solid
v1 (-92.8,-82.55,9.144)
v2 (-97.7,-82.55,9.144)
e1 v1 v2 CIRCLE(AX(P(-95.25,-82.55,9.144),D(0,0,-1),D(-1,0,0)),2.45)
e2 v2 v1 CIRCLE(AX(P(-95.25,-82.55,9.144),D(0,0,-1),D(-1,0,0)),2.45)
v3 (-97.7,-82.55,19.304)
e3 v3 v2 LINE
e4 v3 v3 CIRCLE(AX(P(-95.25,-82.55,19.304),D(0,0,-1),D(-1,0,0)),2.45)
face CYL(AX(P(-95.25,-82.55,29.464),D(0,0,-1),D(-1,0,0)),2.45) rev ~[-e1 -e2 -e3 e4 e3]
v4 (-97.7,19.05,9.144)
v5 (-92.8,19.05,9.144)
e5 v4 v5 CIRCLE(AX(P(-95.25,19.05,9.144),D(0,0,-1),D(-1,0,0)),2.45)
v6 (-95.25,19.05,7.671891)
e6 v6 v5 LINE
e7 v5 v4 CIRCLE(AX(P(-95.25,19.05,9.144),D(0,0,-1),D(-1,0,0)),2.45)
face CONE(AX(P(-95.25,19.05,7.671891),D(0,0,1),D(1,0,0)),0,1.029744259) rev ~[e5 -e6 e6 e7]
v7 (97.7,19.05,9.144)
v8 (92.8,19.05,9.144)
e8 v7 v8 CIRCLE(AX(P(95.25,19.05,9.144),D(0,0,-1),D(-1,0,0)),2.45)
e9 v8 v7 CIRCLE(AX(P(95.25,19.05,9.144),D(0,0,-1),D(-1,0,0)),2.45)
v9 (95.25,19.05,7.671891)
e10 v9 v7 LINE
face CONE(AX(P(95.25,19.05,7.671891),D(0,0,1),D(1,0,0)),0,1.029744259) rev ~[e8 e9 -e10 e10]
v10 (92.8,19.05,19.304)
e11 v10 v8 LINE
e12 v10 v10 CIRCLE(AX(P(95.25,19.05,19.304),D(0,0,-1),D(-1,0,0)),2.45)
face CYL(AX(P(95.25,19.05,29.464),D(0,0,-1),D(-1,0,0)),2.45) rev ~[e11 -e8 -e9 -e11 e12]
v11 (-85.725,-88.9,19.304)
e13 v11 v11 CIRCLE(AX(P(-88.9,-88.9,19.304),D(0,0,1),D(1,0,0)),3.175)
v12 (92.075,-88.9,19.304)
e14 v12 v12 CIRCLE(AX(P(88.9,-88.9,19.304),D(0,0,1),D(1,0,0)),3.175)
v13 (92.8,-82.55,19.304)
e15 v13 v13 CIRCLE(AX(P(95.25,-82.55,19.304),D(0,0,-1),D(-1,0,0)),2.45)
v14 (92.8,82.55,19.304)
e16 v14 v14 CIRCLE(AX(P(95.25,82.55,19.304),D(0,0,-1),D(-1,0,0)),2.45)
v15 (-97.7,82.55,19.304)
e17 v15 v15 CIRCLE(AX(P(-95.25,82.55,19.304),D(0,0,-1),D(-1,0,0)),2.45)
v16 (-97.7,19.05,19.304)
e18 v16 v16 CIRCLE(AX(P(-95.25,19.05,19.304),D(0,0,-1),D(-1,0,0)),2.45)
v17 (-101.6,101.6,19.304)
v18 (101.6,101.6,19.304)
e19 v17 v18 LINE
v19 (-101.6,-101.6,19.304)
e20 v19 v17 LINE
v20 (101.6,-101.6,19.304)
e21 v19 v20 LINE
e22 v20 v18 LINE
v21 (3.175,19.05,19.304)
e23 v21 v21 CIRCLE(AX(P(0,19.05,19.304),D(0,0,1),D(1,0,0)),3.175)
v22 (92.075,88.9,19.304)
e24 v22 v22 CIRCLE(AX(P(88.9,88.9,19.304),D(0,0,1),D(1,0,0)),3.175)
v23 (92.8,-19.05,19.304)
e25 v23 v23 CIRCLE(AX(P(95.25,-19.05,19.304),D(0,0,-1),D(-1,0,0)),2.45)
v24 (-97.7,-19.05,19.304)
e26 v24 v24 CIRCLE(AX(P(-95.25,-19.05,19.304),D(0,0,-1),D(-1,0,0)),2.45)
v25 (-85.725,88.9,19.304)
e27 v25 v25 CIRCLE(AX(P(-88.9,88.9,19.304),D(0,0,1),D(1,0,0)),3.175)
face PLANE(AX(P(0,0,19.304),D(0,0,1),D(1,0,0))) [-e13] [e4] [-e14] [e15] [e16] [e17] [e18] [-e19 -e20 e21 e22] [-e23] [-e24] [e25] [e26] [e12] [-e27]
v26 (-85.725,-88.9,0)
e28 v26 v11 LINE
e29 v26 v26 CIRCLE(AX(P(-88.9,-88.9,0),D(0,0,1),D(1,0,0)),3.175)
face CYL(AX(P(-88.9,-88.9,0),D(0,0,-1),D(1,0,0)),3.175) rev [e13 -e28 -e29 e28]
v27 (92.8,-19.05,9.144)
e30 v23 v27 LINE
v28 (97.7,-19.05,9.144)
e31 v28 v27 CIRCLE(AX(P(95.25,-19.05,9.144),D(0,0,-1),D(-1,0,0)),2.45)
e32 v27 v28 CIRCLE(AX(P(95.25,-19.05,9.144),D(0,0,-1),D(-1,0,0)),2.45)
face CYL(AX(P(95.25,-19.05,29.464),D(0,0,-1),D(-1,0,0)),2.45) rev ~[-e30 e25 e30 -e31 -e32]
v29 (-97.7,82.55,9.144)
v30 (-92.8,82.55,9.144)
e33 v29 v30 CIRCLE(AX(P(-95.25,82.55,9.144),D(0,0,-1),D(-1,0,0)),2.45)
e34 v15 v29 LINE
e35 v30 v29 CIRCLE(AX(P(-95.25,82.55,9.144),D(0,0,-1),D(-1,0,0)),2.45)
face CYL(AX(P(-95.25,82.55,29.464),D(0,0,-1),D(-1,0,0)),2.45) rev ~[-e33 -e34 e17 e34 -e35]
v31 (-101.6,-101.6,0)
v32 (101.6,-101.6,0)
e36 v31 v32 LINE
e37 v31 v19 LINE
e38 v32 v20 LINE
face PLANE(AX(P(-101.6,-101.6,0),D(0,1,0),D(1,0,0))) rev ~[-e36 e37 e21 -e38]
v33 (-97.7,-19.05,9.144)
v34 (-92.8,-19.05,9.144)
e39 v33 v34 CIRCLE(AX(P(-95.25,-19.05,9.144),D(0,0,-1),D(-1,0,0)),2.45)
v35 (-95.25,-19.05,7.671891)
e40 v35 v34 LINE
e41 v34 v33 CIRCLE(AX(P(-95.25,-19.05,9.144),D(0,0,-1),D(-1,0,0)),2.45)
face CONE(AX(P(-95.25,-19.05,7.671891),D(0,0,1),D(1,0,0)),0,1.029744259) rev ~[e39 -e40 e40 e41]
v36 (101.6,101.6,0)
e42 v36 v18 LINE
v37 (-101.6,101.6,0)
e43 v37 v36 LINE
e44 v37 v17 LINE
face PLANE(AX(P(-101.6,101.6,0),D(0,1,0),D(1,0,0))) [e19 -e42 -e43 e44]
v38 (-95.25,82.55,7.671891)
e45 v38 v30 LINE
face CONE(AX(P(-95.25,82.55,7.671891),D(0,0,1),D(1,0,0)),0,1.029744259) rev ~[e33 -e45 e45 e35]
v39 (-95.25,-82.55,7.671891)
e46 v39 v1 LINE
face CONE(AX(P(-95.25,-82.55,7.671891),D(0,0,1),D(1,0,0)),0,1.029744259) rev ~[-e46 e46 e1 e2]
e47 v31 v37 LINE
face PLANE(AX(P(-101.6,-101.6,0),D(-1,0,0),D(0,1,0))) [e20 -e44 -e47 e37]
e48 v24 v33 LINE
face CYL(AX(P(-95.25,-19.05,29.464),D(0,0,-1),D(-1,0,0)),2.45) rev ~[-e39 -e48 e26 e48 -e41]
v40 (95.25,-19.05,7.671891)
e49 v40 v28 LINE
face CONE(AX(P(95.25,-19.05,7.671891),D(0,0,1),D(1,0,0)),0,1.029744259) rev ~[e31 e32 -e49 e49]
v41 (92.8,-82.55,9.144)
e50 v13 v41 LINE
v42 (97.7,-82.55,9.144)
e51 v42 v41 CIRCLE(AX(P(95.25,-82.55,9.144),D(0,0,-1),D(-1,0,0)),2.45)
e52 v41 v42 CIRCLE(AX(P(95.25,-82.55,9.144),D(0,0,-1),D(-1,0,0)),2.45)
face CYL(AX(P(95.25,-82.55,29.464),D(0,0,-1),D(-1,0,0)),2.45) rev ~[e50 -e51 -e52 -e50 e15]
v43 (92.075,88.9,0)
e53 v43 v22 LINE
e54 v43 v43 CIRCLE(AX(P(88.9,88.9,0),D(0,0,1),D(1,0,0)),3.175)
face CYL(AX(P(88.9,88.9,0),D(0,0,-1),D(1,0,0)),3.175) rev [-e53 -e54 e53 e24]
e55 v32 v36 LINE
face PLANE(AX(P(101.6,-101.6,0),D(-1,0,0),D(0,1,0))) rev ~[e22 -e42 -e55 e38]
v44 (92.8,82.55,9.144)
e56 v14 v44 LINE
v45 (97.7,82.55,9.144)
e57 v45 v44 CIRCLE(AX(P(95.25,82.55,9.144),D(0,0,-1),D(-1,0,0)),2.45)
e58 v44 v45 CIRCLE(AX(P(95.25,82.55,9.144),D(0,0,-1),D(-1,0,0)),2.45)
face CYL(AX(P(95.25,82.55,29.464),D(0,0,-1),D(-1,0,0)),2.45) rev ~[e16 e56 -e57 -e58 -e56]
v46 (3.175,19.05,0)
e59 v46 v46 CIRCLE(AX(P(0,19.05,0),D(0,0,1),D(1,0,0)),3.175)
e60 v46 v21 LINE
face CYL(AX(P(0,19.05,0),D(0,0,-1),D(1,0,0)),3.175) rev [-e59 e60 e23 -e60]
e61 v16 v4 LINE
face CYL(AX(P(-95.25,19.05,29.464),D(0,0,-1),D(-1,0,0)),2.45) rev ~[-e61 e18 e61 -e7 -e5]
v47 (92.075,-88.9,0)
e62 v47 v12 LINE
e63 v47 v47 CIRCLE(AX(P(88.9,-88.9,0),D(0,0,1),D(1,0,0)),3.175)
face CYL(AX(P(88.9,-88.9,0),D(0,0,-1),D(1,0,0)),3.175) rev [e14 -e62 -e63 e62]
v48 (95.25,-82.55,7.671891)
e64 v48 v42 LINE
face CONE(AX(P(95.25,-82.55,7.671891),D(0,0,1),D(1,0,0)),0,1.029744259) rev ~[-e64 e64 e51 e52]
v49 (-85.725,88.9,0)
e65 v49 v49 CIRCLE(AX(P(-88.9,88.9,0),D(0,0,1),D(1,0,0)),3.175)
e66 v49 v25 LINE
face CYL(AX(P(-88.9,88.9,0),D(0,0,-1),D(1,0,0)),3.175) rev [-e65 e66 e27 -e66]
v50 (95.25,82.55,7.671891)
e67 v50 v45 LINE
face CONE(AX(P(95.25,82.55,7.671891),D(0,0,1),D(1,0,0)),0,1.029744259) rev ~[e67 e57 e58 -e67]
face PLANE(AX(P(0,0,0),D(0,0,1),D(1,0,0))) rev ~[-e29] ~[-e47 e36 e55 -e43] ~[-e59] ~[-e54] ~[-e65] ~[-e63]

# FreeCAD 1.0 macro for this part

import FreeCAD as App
import Part
import Sketcher
Q = App.Units.Quantity


def add_polygon(sketch, points):
    """Adds a closed chain of lines whose ends are joined by coincident constraints."""
    first, n = sketch.GeometryCount, len(points)
    for a, b in zip(points, points[1:] + points[:1]):
        sketch.addGeometry(Part.LineSegment(App.Vector(*a, 0), App.Vector(*b, 0)), False)
    for i in range(n):
        sketch.addConstraint(Sketcher.Constraint("Coincident", first + i, 2, first + (i + 1) % n, 1))

doc = App.newDocument("Part")
body = doc.addObject("PartDesign::Body", "Body")

# Sketch on XY plane
sketch1 = body.newObject("Sketcher::SketchObject", "Sketch")
sketch1.AttachmentSupport = (doc.getObject("XY_Plane"), [""])
sketch1.MapMode = "FlatFace"
add_polygon(sketch1, [(-101.6, 101.6), (-101.6, -101.6), (101.6, -101.6), (101.6, 101.6)])  # lines 0-3
sketch1.addGeometry(Part.Circle(App.Vector(-88.9, -88.9, 0), App.Vector(0, 0, 1), 3.2), False)  # 4
sketch1.addGeometry(Part.Circle(App.Vector(88.9, -88.9, 0), App.Vector(0, 0, 1), 3.2), False)  # 5
sketch1.addGeometry(Part.Circle(App.Vector(-88.9, 88.9, 0), App.Vector(0, 0, 1), 3.2), False)  # 6
sketch1.addGeometry(Part.Circle(App.Vector(0, 19.1, 0), App.Vector(0, 0, 1), 3.2), False)  # 7
sketch1.addGeometry(Part.Circle(App.Vector(88.9, 88.9, 0), App.Vector(0, 0, 1), 3.2), False)  # 8
sketch1.addConstraint([
    Sketcher.Constraint("Vertical", 0),
    Sketcher.Constraint("Horizontal", 1),
    Sketcher.Constraint("Vertical", 2),
    Sketcher.Constraint("Horizontal", 3),
    Sketcher.Constraint("Equal", 4, 5),
    Sketcher.Constraint("Equal", 5, 6),
    Sketcher.Constraint("Equal", 6, 7),
    Sketcher.Constraint("Equal", 7, 8),
    Sketcher.Constraint("Symmetric", 5, 3, 6, 3, -1, 1),
    Sketcher.Constraint("Symmetric", 4, 3, 8, 3, -1, 1),
    Sketcher.Constraint("Symmetric", 0, 2, 2, 2, -1, 1),
    Sketcher.Constraint("Symmetric", 4, 3, 5, 3, -2),
    Sketcher.Constraint("PointOnObject", 7, 3, -2),
    Sketcher.Constraint("Equal", 3, 0),
    Sketcher.Constraint("Diameter", 4, Q("0.25 in")),
    Sketcher.Constraint("DistanceX", 1, 1, 1, 2, Q("8 in")),
    Sketcher.Constraint("DistanceX", 4, 3, 5, 3, Q("7 in")),
    Sketcher.Constraint("DistanceY", 4, 3, 6, 3, Q("7 in")),
    Sketcher.Constraint("DistanceY", -1, 1, 7, 3, Q("0.75 in")),
])
pad1 = body.newObject("PartDesign::Pad", "Pad")
pad1.Profile = sketch1
pad1.Length = Q("0.76 in")

# Sketch on XY plane
sketch2 = body.newObject("Sketcher::SketchObject", "Sketch001")
sketch2.AttachmentSupport = (doc.getObject("XY_Plane"), [""])
sketch2.MapMode = "FlatFace"
sketch2.AttachmentOffset = App.Placement(App.Vector(0, 0, 0.76 * 25.4), App.Rotation())
sketch2.addGeometry([
    Part.Circle(App.Vector(-95.2, -82.5, 0), App.Vector(0, 0, 1), 2.5),  # 0
    Part.Circle(App.Vector(-95.2, -19.1, 0), App.Vector(0, 0, 1), 2.5),  # 1
    Part.Circle(App.Vector(-95.2, 19.1, 0), App.Vector(0, 0, 1), 2.5),  # 2
    Part.Circle(App.Vector(-95.2, 82.5, 0), App.Vector(0, 0, 1), 2.5),  # 3
    Part.Circle(App.Vector(95.2, 82.5, 0), App.Vector(0, 0, 1), 2.5),  # 4
    Part.Circle(App.Vector(95.2, 19.1, 0), App.Vector(0, 0, 1), 2.5),  # 5
    Part.Circle(App.Vector(95.2, -19.1, 0), App.Vector(0, 0, 1), 2.5),  # 6
    Part.Circle(App.Vector(95.2, -82.5, 0), App.Vector(0, 0, 1), 2.5),  # 7
], False)
sketch2.addConstraint([
    Sketcher.Constraint("Equal", 0, 1),
    Sketcher.Constraint("Equal", 1, 2),
    Sketcher.Constraint("Equal", 2, 3),
    Sketcher.Constraint("Equal", 3, 4),
    Sketcher.Constraint("Equal", 4, 5),
    Sketcher.Constraint("Equal", 5, 6),
    Sketcher.Constraint("Equal", 6, 7),
    Sketcher.Constraint("Symmetric", 0, 3, 4, 3, -1, 1),
    Sketcher.Constraint("Symmetric", 1, 3, 5, 3, -1, 1),
    Sketcher.Constraint("Symmetric", 2, 3, 6, 3, -1, 1),
    Sketcher.Constraint("Symmetric", 3, 3, 7, 3, -1, 1),
    Sketcher.Constraint("Symmetric", 3, 3, 4, 3, -2),
    Sketcher.Constraint("Symmetric", 2, 3, 5, 3, -2),
    Sketcher.Constraint("Vertical", 0, 3, 1, 3),
    Sketcher.Constraint("DistanceY", 0, 3, 2, 3, Q("4 in")),
    Sketcher.Constraint("DistanceY", 0, 3, 1, 3, Q("2.5 in")),
    Sketcher.Constraint("DistanceX", 3, 3, 4, 3, Q("7.5 in")),
    Sketcher.Constraint("Diameter", 0, Q("4.9 mm")),
])
doc.recompute()
hole = body.newObject("PartDesign::Hole", "Hole")
hole.Profile = sketch2
hole.ThreadType = "None"
hole.Diameter = 4.9
hole.DepthType = "Dimension"
hole.Depth = Q("0.4 in")
hole.DrillPoint = "Angled"
hole.DrillPointAngle = 118

doc.recompute()
